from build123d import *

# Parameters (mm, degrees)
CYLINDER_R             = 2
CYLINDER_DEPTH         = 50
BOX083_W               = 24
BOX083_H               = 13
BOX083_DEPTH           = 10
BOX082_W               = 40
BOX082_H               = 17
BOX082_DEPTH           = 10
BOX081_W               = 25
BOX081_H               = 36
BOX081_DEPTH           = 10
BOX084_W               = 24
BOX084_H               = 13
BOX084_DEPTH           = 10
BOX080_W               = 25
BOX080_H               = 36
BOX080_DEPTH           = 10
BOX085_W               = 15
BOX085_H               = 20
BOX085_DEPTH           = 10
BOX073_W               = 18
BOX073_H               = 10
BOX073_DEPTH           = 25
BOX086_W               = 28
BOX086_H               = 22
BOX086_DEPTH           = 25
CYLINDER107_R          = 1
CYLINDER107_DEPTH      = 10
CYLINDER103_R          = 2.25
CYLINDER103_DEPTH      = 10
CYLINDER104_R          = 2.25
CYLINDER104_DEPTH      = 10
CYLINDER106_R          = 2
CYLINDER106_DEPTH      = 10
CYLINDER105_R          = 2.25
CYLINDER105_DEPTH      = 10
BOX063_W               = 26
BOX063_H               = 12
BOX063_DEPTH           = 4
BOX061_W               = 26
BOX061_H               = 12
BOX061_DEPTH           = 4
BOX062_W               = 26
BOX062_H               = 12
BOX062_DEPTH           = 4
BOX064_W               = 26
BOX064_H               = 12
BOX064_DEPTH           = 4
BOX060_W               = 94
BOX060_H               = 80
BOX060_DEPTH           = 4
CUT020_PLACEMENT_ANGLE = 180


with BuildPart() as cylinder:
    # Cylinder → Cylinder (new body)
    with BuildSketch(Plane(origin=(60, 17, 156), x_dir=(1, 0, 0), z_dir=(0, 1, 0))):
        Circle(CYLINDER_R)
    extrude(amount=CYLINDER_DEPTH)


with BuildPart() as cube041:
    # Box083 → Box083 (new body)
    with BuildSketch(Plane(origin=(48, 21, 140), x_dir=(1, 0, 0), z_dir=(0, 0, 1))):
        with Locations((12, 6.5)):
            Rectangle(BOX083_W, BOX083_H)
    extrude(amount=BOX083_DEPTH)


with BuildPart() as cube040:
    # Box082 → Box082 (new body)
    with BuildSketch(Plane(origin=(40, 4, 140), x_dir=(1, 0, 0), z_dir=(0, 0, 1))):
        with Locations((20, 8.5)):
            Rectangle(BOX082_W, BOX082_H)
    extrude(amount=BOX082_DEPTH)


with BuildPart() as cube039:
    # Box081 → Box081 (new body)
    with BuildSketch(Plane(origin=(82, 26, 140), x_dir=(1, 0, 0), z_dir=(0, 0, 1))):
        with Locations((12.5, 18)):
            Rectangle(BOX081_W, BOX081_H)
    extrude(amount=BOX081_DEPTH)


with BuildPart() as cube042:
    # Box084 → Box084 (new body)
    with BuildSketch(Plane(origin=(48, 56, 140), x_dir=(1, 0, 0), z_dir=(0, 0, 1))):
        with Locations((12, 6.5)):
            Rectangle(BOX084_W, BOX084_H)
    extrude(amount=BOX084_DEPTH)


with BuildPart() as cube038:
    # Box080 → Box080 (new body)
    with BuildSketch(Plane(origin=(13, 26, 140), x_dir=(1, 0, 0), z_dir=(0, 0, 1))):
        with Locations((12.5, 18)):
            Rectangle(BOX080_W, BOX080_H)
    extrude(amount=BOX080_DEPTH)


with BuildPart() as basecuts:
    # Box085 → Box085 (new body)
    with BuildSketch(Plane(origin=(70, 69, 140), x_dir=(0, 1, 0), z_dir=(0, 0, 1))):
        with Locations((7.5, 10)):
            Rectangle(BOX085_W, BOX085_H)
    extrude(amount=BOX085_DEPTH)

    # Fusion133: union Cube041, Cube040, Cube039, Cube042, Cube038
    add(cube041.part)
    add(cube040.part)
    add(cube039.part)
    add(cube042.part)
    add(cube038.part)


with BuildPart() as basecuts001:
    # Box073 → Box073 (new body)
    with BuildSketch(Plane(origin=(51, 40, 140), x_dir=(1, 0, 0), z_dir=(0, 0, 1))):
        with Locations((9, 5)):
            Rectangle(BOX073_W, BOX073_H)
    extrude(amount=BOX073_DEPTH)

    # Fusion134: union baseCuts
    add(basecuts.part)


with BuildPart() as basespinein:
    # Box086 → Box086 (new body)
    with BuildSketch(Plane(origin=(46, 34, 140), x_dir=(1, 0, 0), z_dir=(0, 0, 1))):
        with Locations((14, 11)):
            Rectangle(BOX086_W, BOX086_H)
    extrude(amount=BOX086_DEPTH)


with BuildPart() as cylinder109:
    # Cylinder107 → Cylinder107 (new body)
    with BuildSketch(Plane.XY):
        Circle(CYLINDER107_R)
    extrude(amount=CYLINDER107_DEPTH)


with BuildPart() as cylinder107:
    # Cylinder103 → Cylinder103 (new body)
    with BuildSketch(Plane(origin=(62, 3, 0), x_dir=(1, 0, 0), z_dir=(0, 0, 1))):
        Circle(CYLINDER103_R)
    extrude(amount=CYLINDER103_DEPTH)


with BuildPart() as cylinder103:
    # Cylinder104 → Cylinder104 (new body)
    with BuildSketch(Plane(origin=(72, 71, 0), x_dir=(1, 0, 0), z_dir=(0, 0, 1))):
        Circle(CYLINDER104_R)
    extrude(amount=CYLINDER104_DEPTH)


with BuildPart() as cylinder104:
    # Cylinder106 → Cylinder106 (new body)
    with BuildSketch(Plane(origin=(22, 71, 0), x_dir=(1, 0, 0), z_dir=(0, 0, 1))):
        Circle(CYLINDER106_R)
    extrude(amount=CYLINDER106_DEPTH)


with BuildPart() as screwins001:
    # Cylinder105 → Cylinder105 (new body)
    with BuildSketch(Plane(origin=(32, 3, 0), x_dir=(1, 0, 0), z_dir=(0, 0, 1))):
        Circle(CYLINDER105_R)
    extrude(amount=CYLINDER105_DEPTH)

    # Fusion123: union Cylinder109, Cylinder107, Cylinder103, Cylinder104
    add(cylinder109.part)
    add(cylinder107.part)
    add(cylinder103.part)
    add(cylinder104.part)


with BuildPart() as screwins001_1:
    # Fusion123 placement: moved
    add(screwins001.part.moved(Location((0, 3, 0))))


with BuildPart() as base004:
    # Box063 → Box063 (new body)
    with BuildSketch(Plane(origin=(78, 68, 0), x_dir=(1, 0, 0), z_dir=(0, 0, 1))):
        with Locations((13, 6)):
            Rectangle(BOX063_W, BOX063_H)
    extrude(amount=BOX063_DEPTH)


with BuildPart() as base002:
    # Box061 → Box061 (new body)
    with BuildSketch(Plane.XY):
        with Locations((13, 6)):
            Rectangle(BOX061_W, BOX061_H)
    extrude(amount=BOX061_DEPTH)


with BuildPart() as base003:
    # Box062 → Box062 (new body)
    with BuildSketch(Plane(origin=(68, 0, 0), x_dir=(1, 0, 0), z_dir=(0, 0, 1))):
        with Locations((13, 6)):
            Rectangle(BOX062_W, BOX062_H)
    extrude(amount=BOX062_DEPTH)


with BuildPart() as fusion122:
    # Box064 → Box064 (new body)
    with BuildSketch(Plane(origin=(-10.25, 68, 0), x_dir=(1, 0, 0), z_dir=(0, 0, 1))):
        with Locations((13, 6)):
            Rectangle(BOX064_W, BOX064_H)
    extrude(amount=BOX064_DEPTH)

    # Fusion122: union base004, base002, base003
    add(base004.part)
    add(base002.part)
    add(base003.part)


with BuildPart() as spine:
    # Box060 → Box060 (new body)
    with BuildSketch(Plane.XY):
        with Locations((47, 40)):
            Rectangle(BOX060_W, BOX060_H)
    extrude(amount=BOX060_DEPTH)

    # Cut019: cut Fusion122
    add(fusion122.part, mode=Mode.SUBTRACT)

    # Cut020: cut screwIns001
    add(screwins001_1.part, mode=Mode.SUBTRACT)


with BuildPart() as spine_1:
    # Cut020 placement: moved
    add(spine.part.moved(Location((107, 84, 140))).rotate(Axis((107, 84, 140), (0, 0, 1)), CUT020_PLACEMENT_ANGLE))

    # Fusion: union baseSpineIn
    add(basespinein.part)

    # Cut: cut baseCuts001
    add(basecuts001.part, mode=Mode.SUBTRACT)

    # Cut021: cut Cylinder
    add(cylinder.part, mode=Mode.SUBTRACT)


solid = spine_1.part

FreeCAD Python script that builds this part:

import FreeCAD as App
import Part
import Sketcher
from FreeCAD import Vector
Q = App.Units.Quantity


def add_polygon(sketch, points):
    """Adds a closed chain of lines whose ends are joined by coincident constraints."""
    first, n = sketch.GeometryCount, len(points)
    for a, b in zip(points, points[1:] + points[:1]):
        sketch.addGeometry(Part.LineSegment(App.Vector(*a, 0), App.Vector(*b, 0)), False)
    for i in range(n):
        sketch.addConstraint(Sketcher.Constraint("Coincident", first + i, 2, first + (i + 1) % n, 1))

doc = App.newDocument("Part")
body = doc.addObject("PartDesign::Body", "Body")

# Sketch on XZ plane
sketch1 = doc.addObject("Sketcher::SketchObject", "Sketch")
body.addObject(sketch1)
sketch1.AttachmentSupport = (doc.XZ_Plane, [""])
sketch1.MapMode = "FlatFace"
sketch1.AttachmentOffset = App.Placement(Vector(0, 0, -17), App.Rotation())
sketch1.addGeometry(Part.Circle(Vector(60, 156, 0), Vector(0, 0, 1), 2), False)
sketch1.addConstraint([
    Sketcher.Constraint("Diameter", 0, Q("4 mm")),
    Sketcher.Constraint("DistanceX", -1, 1, 0, 3, Q("60 mm")),
    Sketcher.Constraint("DistanceY", -1, 1, 0, 3, Q("156 mm")),
])
pad1 = doc.addObject("PartDesign::Pad", "Pad")
body.addObject(pad1)
pad1.Profile = sketch1
pad1.Length = 50
pad1.Reversed = True
body2 = doc.addObject("PartDesign::Body", "Body001")

# Sketch on XY plane
sketch2 = doc.addObject("Sketcher::SketchObject", "Sketch001")
body2.addObject(sketch2)
sketch2.AttachmentSupport = (doc.getObject("XY_Plane001"), [""])
sketch2.MapMode = "FlatFace"
sketch2.AttachmentOffset = App.Placement(Vector(0, 0, 140), App.Rotation())
add_polygon(sketch2, [(48, 34), (48, 21), (72, 21), (72, 34)])  # lines 0-3
sketch2.addConstraint([
    Sketcher.Constraint("Vertical", 0),
    Sketcher.Constraint("Horizontal", 1),
    Sketcher.Constraint("Vertical", 2),
    Sketcher.Constraint("Horizontal", 3),
    Sketcher.Constraint("DistanceX", 1, 1, 1, 2, Q("24 mm")),
    Sketcher.Constraint("DistanceY", 0, 2, 0, 1, Q("13 mm")),
    Sketcher.Constraint("DistanceX", -1, 1, 0, 2, Q("48 mm")),
    Sketcher.Constraint("DistanceY", -1, 1, 0, 2, Q("21 mm")),
])
pad2 = doc.addObject("PartDesign::Pad", "Pad001")
body2.addObject(pad2)
pad2.Profile = sketch2
pad2.Length = 10
body3 = doc.addObject("PartDesign::Body", "Body002")

# Sketch on XY plane
sketch3 = doc.addObject("Sketcher::SketchObject", "Sketch002")
body3.addObject(sketch3)
sketch3.AttachmentSupport = (doc.getObject("XY_Plane002"), [""])
sketch3.MapMode = "FlatFace"
sketch3.AttachmentOffset = App.Placement(Vector(0, 0, 140), App.Rotation())
add_polygon(sketch3, [(40, 21), (40, 4), (80, 4), (80, 21)])  # lines 0-3
sketch3.addConstraint([
    Sketcher.Constraint("Vertical", 0),
    Sketcher.Constraint("Horizontal", 1),
    Sketcher.Constraint("Vertical", 2),
    Sketcher.Constraint("Horizontal", 3),
    Sketcher.Constraint("DistanceX", 1, 1, 1, 2, Q("40 mm")),
    Sketcher.Constraint("DistanceY", 0, 2, 0, 1, Q("17 mm")),
    Sketcher.Constraint("DistanceX", -1, 1, 0, 2, Q("40 mm")),
    Sketcher.Constraint("DistanceY", -1, 1, 0, 2, Q("4 mm")),
])
pad3 = doc.addObject("PartDesign::Pad", "Pad002")
body3.addObject(pad3)
pad3.Profile = sketch3
pad3.Length = 10
body4 = doc.addObject("PartDesign::Body", "Body003")

# Sketch on XY plane
sketch4 = doc.addObject("Sketcher::SketchObject", "Sketch003")
body4.addObject(sketch4)
sketch4.AttachmentSupport = (doc.getObject("XY_Plane003"), [""])
sketch4.MapMode = "FlatFace"
sketch4.AttachmentOffset = App.Placement(Vector(0, 0, 140), App.Rotation())
add_polygon(sketch4, [(82, 62), (82, 26), (107, 26), (107, 62)])  # lines 0-3
sketch4.addConstraint([
    Sketcher.Constraint("Vertical", 0),
    Sketcher.Constraint("Horizontal", 1),
    Sketcher.Constraint("Vertical", 2),
    Sketcher.Constraint("Horizontal", 3),
    Sketcher.Constraint("DistanceX", 1, 1, 1, 2, Q("25 mm")),
    Sketcher.Constraint("DistanceY", 0, 2, 0, 1, Q("36 mm")),
    Sketcher.Constraint("DistanceX", -1, 1, 0, 2, Q("82 mm")),
    Sketcher.Constraint("DistanceY", -1, 1, 0, 2, Q("26 mm")),
])
pad4 = doc.addObject("PartDesign::Pad", "Pad003")
body4.addObject(pad4)
pad4.Profile = sketch4
pad4.Length = 10
body5 = doc.addObject("PartDesign::Body", "Body004")

# Sketch on XY plane
sketch5 = doc.addObject("Sketcher::SketchObject", "Sketch004")
body5.addObject(sketch5)
sketch5.AttachmentSupport = (doc.getObject("XY_Plane004"), [""])
sketch5.MapMode = "FlatFace"
sketch5.AttachmentOffset = App.Placement(Vector(0, 0, 140), App.Rotation())
add_polygon(sketch5, [(48, 69), (48, 56), (72, 56), (72, 69)])  # lines 0-3
sketch5.addConstraint([
    Sketcher.Constraint("Vertical", 0),
    Sketcher.Constraint("Horizontal", 1),
    Sketcher.Constraint("Vertical", 2),
    Sketcher.Constraint("Horizontal", 3),
    Sketcher.Constraint("DistanceX", 1, 1, 1, 2, Q("24 mm")),
    Sketcher.Constraint("DistanceY", 0, 2, 0, 1, Q("13 mm")),
    Sketcher.Constraint("DistanceX", -1, 1, 0, 2, Q("48 mm")),
    Sketcher.Constraint("DistanceY", -1, 1, 0, 2, Q("56 mm")),
])
pad5 = doc.addObject("PartDesign::Pad", "Pad004")
body5.addObject(pad5)
pad5.Profile = sketch5
pad5.Length = 10
body6 = doc.addObject("PartDesign::Body", "Body005")

# Sketch on XY plane
sketch6 = doc.addObject("Sketcher::SketchObject", "Sketch005")
body6.addObject(sketch6)
sketch6.AttachmentSupport = (doc.getObject("XY_Plane005"), [""])
sketch6.MapMode = "FlatFace"
sketch6.AttachmentOffset = App.Placement(Vector(0, 0, 140), App.Rotation())
add_polygon(sketch6, [(13, 62), (13, 26), (38, 26), (38, 62)])  # lines 0-3
sketch6.addConstraint([
    Sketcher.Constraint("Vertical", 0),
    Sketcher.Constraint("Horizontal", 1),
    Sketcher.Constraint("Vertical", 2),
    Sketcher.Constraint("Horizontal", 3),
    Sketcher.Constraint("DistanceX", 1, 1, 1, 2, Q("25 mm")),
    Sketcher.Constraint("DistanceY", 0, 2, 0, 1, Q("36 mm")),
    Sketcher.Constraint("DistanceX", -1, 1, 0, 2, Q("13 mm")),
    Sketcher.Constraint("DistanceY", -1, 1, 0, 2, Q("26 mm")),
])
pad6 = doc.addObject("PartDesign::Pad", "Pad005")
body6.addObject(pad6)
pad6.Profile = sketch6
pad6.Length = 10
body7 = doc.addObject("PartDesign::Body", "Body006")
body7.AllowCompound = True

# Sketch on XY plane
sketch7 = doc.addObject("Sketcher::SketchObject", "Sketch006")
body7.addObject(sketch7)
sketch7.AttachmentSupport = (doc.getObject("XY_Plane006"), [""])
sketch7.MapMode = "FlatFace"
sketch7.AttachmentOffset = App.Placement(Vector(0, 0, 140), App.Rotation())
add_polygon(sketch7, [(50, 69), (70, 69), (70, 84), (50, 84)])  # lines 0-3
sketch7.addConstraint([
    Sketcher.Constraint("Horizontal", 0),
    Sketcher.Constraint("Vertical", 1),
    Sketcher.Constraint("Horizontal", 2),
    Sketcher.Constraint("Vertical", 3),
    Sketcher.Constraint("DistanceX", 0, 1, 0, 2, Q("20 mm")),
    Sketcher.Constraint("DistanceY", 1, 1, 1, 2, Q("15 mm")),
    Sketcher.Constraint("DistanceX", -1, 1, 0, 2, Q("70 mm")),
    Sketcher.Constraint("DistanceY", -1, 1, 0, 2, Q("69 mm")),
])
pad7 = doc.addObject("PartDesign::Pad", "Pad006")
body7.addObject(pad7)
pad7.Profile = sketch7
pad7.Length = 10
doc.recompute()

boolean = doc.addObject("PartDesign::Boolean", "Boolean")
body7.addObject(boolean)
boolean.Type = "Fuse"
boolean.addObjects([body2])
doc.recompute()

boolean2 = doc.addObject("PartDesign::Boolean", "Boolean001")
body7.addObject(boolean2)
boolean2.Type = "Fuse"
boolean2.addObjects([body3])
doc.recompute()

boolean3 = doc.addObject("PartDesign::Boolean", "Boolean002")
body7.addObject(boolean3)
boolean3.Type = "Fuse"
boolean3.addObjects([body4])
doc.recompute()

boolean4 = doc.addObject("PartDesign::Boolean", "Boolean003")
body7.addObject(boolean4)
boolean4.Type = "Fuse"
boolean4.addObjects([body5])
doc.recompute()

boolean5 = doc.addObject("PartDesign::Boolean", "Boolean004")
body7.addObject(boolean5)
boolean5.Type = "Fuse"
boolean5.addObjects([body6])
body8 = doc.addObject("PartDesign::Body", "Body007")
body8.AllowCompound = True

# Sketch on XY plane
sketch8 = doc.addObject("Sketcher::SketchObject", "Sketch007")
body8.addObject(sketch8)
sketch8.AttachmentSupport = (doc.getObject("XY_Plane007"), [""])
sketch8.MapMode = "FlatFace"
sketch8.AttachmentOffset = App.Placement(Vector(0, 0, 140), App.Rotation())
add_polygon(sketch8, [(51, 50), (51, 40), (69, 40), (69, 50)])  # lines 0-3
sketch8.addConstraint([
    Sketcher.Constraint("Vertical", 0),
    Sketcher.Constraint("Horizontal", 1),
    Sketcher.Constraint("Vertical", 2),
    Sketcher.Constraint("Horizontal", 3),
    Sketcher.Constraint("DistanceX", 1, 1, 1, 2, Q("18 mm")),
    Sketcher.Constraint("DistanceY", 0, 2, 0, 1, Q("10 mm")),
    Sketcher.Constraint("DistanceX", -1, 1, 0, 2, Q("51 mm")),
    Sketcher.Constraint("DistanceY", -1, 1, 0, 2, Q("40 mm")),
])
pad8 = doc.addObject("PartDesign::Pad", "Pad007")
body8.addObject(pad8)
pad8.Profile = sketch8
pad8.Length = 25
doc.recompute()

boolean6 = doc.addObject("PartDesign::Boolean", "Boolean005")
body8.addObject(boolean6)
boolean6.Type = "Fuse"
boolean6.addObjects([body7])
body9 = doc.addObject("PartDesign::Body", "Body008")

# Sketch on XY plane
sketch9 = doc.addObject("Sketcher::SketchObject", "Sketch008")
body9.addObject(sketch9)
sketch9.AttachmentSupport = (doc.getObject("XY_Plane008"), [""])
sketch9.MapMode = "FlatFace"
sketch9.AttachmentOffset = App.Placement(Vector(0, 0, 140), App.Rotation())
add_polygon(sketch9, [(46, 56), (46, 34), (74, 34), (74, 56)])  # lines 0-3
sketch9.addConstraint([
    Sketcher.Constraint("Vertical", 0),
    Sketcher.Constraint("Horizontal", 1),
    Sketcher.Constraint("Vertical", 2),
    Sketcher.Constraint("Horizontal", 3),
    Sketcher.Constraint("DistanceX", 1, 1, 1, 2, Q("28 mm")),
    Sketcher.Constraint("DistanceY", 0, 2, 0, 1, Q("22 mm")),
    Sketcher.Constraint("DistanceX", -1, 1, 0, 2, Q("46 mm")),
    Sketcher.Constraint("DistanceY", -1, 1, 0, 2, Q("34 mm")),
])
pad9 = doc.addObject("PartDesign::Pad", "Pad008")
body9.addObject(pad9)
pad9.Profile = sketch9
pad9.Length = 25
body10 = doc.addObject("PartDesign::Body", "Body009")

# Sketch on XY plane
sketch10 = doc.addObject("Sketcher::SketchObject", "Sketch009")
body10.addObject(sketch10)
sketch10.AttachmentSupport = (doc.getObject("XY_Plane009"), [""])
sketch10.MapMode = "FlatFace"
sketch10.addGeometry(Part.Circle(Vector(0, 0, 0), Vector(0, 0, 1), 1), False)
sketch10.addConstraint([
    Sketcher.Constraint("Coincident", 0, 3, -1, 1),
    Sketcher.Constraint("Diameter", 0, Q("2 mm")),
])
pad10 = doc.addObject("PartDesign::Pad", "Pad009")
body10.addObject(pad10)
pad10.Profile = sketch10
pad10.Length = 10
body11 = doc.addObject("PartDesign::Body", "Body010")

# Sketch on XY plane
sketch11 = doc.addObject("Sketcher::SketchObject", "Sketch010")
body11.addObject(sketch11)
sketch11.AttachmentSupport = (doc.getObject("XY_Plane010"), [""])
sketch11.MapMode = "FlatFace"
sketch11.addGeometry(Part.Circle(Vector(62, 3, 0), Vector(0, 0, 1), 2.25), False)
sketch11.addConstraint([
    Sketcher.Constraint("Diameter", 0, Q("4.5 mm")),
    Sketcher.Constraint("DistanceX", -1, 1, 0, 3, Q("62 mm")),
    Sketcher.Constraint("DistanceY", -1, 1, 0, 3, Q("3 mm")),
])
pad11 = doc.addObject("PartDesign::Pad", "Pad010")
body11.addObject(pad11)
pad11.Profile = sketch11
pad11.Length = 10
body12 = doc.addObject("PartDesign::Body", "Body011")

# Sketch on XY plane
sketch12 = doc.addObject("Sketcher::SketchObject", "Sketch011")
body12.addObject(sketch12)
sketch12.AttachmentSupport = (doc.getObject("XY_Plane011"), [""])
sketch12.MapMode = "FlatFace"
sketch12.addGeometry(Part.Circle(Vector(72, 71, 0), Vector(0, 0, 1), 2.25), False)
sketch12.addConstraint([
    Sketcher.Constraint("Diameter", 0, Q("4.5 mm")),
    Sketcher.Constraint("DistanceX", -1, 1, 0, 3, Q("72 mm")),
    Sketcher.Constraint("DistanceY", -1, 1, 0, 3, Q("71 mm")),
])
pad12 = doc.addObject("PartDesign::Pad", "Pad011")
body12.addObject(pad12)
pad12.Profile = sketch12
pad12.Length = 10
body13 = doc.addObject("PartDesign::Body", "Body012")

# Sketch on XY plane
sketch13 = doc.addObject("Sketcher::SketchObject", "Sketch012")
body13.addObject(sketch13)
sketch13.AttachmentSupport = (doc.getObject("XY_Plane012"), [""])
sketch13.MapMode = "FlatFace"
sketch13.addGeometry(Part.Circle(Vector(22, 71, 0), Vector(0, 0, 1), 2), False)
sketch13.addConstraint([
    Sketcher.Constraint("Diameter", 0, Q("4 mm")),
    Sketcher.Constraint("DistanceX", -1, 1, 0, 3, Q("22 mm")),
    Sketcher.Constraint("DistanceY", -1, 1, 0, 3, Q("71 mm")),
])
pad13 = doc.addObject("PartDesign::Pad", "Pad012")
body13.addObject(pad13)
pad13.Profile = sketch13
pad13.Length = 10
body14 = doc.addObject("PartDesign::Body", "Body013")
body14.AllowCompound = True

# Sketch on XY plane
sketch14 = doc.addObject("Sketcher::SketchObject", "Sketch013")
body14.addObject(sketch14)
sketch14.AttachmentSupport = (doc.getObject("XY_Plane013"), [""])
sketch14.MapMode = "FlatFace"
sketch14.addGeometry(Part.Circle(Vector(32, 3, 0), Vector(0, 0, 1), 2.25), False)
sketch14.addConstraint([
    Sketcher.Constraint("Diameter", 0, Q("4.5 mm")),
    Sketcher.Constraint("DistanceX", -1, 1, 0, 3, Q("32 mm")),
    Sketcher.Constraint("DistanceY", -1, 1, 0, 3, Q("3 mm")),
])
pad14 = doc.addObject("PartDesign::Pad", "Pad013")
body14.addObject(pad14)
pad14.Profile = sketch14
pad14.Length = 10
doc.recompute()

boolean7 = doc.addObject("PartDesign::Boolean", "Boolean006")
body14.addObject(boolean7)
boolean7.Type = "Fuse"
boolean7.addObjects([body10])
doc.recompute()

boolean8 = doc.addObject("PartDesign::Boolean", "Boolean007")
body14.addObject(boolean8)
boolean8.Type = "Fuse"
boolean8.addObjects([body11])
doc.recompute()

boolean9 = doc.addObject("PartDesign::Boolean", "Boolean008")
body14.addObject(boolean9)
boolean9.Type = "Fuse"
boolean9.addObjects([body12])
doc.recompute()

boolean10 = doc.addObject("PartDesign::Boolean", "Boolean009")
body14.addObject(boolean10)
boolean10.Type = "Fuse"
boolean10.addObjects([body13])
body15 = doc.addObject("PartDesign::Body", "Body014")
body15.AllowCompound = True
doc.recompute()

body14.Placement = App.Placement(Vector(0, 3, 0), App.Rotation(Vector(0, 0, 1), 0))
boolean11 = doc.addObject("PartDesign::Boolean", "Boolean010")
body15.addObject(boolean11)
boolean11.Type = "Fuse"
boolean11.addObjects([body14])
body16 = doc.addObject("PartDesign::Body", "Body015")

# Sketch on XY plane
sketch15 = doc.addObject("Sketcher::SketchObject", "Sketch014")
body16.addObject(sketch15)
sketch15.AttachmentSupport = (doc.getObject("XY_Plane015"), [""])
sketch15.MapMode = "FlatFace"
add_polygon(sketch15, [(78, 80), (78, 68), (104, 68), (104, 80)])  # lines 0-3
sketch15.addConstraint([
    Sketcher.Constraint("Vertical", 0),
    Sketcher.Constraint("Horizontal", 1),
    Sketcher.Constraint("Vertical", 2),
    Sketcher.Constraint("Horizontal", 3),
    Sketcher.Constraint("DistanceX", 1, 1, 1, 2, Q("26 mm")),
    Sketcher.Constraint("DistanceY", 0, 2, 0, 1, Q("12 mm")),
    Sketcher.Constraint("DistanceX", -1, 1, 0, 2, Q("78 mm")),
    Sketcher.Constraint("DistanceY", -1, 1, 0, 2, Q("68 mm")),
])
pad15 = doc.addObject("PartDesign::Pad", "Pad014")
body16.addObject(pad15)
pad15.Profile = sketch15
pad15.Length = 4
body17 = doc.addObject("PartDesign::Body", "Body016")

# Sketch on XY plane
sketch16 = doc.addObject("Sketcher::SketchObject", "Sketch015")
body17.addObject(sketch16)
sketch16.AttachmentSupport = (doc.getObject("XY_Plane016"), [""])
sketch16.MapMode = "FlatFace"
add_polygon(sketch16, [(0, 12), (0, 0), (26, 0), (26, 12)])  # lines 0-3
sketch16.addConstraint([
    Sketcher.Constraint("Vertical", 0),
    Sketcher.Constraint("Horizontal", 1),
    Sketcher.Constraint("Vertical", 2),
    Sketcher.Constraint("Horizontal", 3),
    Sketcher.Constraint("Coincident", 0, 2, -1, 1),
    Sketcher.Constraint("DistanceX", 1, 1, 1, 2, Q("26 mm")),
    Sketcher.Constraint("DistanceY", 0, 2, 0, 1, Q("12 mm")),
])
pad16 = doc.addObject("PartDesign::Pad", "Pad015")
body17.addObject(pad16)
pad16.Profile = sketch16
pad16.Length = 4
body18 = doc.addObject("PartDesign::Body", "Body017")

# Sketch on XY plane
sketch17 = doc.addObject("Sketcher::SketchObject", "Sketch016")
body18.addObject(sketch17)
sketch17.AttachmentSupport = (doc.getObject("XY_Plane017"), [""])
sketch17.MapMode = "FlatFace"
add_polygon(sketch17, [(68, 12), (68, 0), (94, 0), (94, 12)])  # lines 0-3
sketch17.addConstraint([
    Sketcher.Constraint("Vertical", 0),
    Sketcher.Constraint("Horizontal", 1),
    Sketcher.Constraint("Vertical", 2),
    Sketcher.Constraint("Horizontal", 3),
    Sketcher.Constraint("PointOnObject", 0, 2, -1),
    Sketcher.Constraint("DistanceX", 1, 1, 1, 2, Q("26 mm")),
    Sketcher.Constraint("DistanceY", 0, 2, 0, 1, Q("12 mm")),
    Sketcher.Constraint("DistanceX", -1, 1, 0, 2, Q("68 mm")),
])
pad17 = doc.addObject("PartDesign::Pad", "Pad016")
body18.addObject(pad17)
pad17.Profile = sketch17
pad17.Length = 4
body19 = doc.addObject("PartDesign::Body", "Body018")
body19.AllowCompound = True

# Sketch on XY plane
sketch18 = doc.addObject("Sketcher::SketchObject", "Sketch017")
body19.addObject(sketch18)
sketch18.AttachmentSupport = (doc.getObject("XY_Plane018"), [""])
sketch18.MapMode = "FlatFace"
add_polygon(sketch18, [(-10.25, 80), (-10.25, 68), (15.75, 68), (15.75, 80)])  # lines 0-3
sketch18.addConstraint([
    Sketcher.Constraint("Vertical", 0),
    Sketcher.Constraint("Horizontal", 1),
    Sketcher.Constraint("Vertical", 2),
    Sketcher.Constraint("Horizontal", 3),
    Sketcher.Constraint("DistanceX", 1, 1, 1, 2, Q("26 mm")),
    Sketcher.Constraint("DistanceY", 0, 2, 0, 1, Q("12 mm")),
    Sketcher.Constraint("DistanceY", -1, 1, 0, 2, Q("68 mm")),
    Sketcher.Constraint("DistanceX", 0, 2, -1, 1, Q("10.25 mm")),
])
pad18 = doc.addObject("PartDesign::Pad", "Pad017")
body19.addObject(pad18)
pad18.Profile = sketch18
pad18.Length = 4
doc.recompute()

boolean12 = doc.addObject("PartDesign::Boolean", "Boolean011")
body19.addObject(boolean12)
boolean12.Type = "Fuse"
boolean12.addObjects([body16])
doc.recompute()

boolean13 = doc.addObject("PartDesign::Boolean", "Boolean012")
body19.addObject(boolean13)
boolean13.Type = "Fuse"
boolean13.addObjects([body17])
doc.recompute()

boolean14 = doc.addObject("PartDesign::Boolean", "Boolean013")
body19.addObject(boolean14)
boolean14.Type = "Fuse"
boolean14.addObjects([body18])
body20 = doc.addObject("PartDesign::Body", "Body019")

# Sketch on XY plane
sketch19 = doc.addObject("Sketcher::SketchObject", "Sketch018")
body20.addObject(sketch19)
sketch19.AttachmentSupport = (doc.getObject("XY_Plane019"), [""])
sketch19.MapMode = "FlatFace"
add_polygon(sketch19, [(0, 80), (0, 0), (94, 0), (94, 80)])  # lines 0-3
sketch19.addConstraint([
    Sketcher.Constraint("Vertical", 0),
    Sketcher.Constraint("Horizontal", 1),
    Sketcher.Constraint("Vertical", 2),
    Sketcher.Constraint("Horizontal", 3),
    Sketcher.Constraint("Coincident", 0, 2, -1, 1),
    Sketcher.Constraint("DistanceX", 1, 1, 1, 2, Q("94 mm")),
    Sketcher.Constraint("DistanceY", 0, 2, 0, 1, Q("80 mm")),
])
pad19 = doc.addObject("PartDesign::Pad", "Pad018")
body20.addObject(pad19)
pad19.Profile = sketch19
pad19.Length = 4
doc.recompute()

boolean15 = doc.addObject("PartDesign::Boolean", "Boolean014")
body20.addObject(boolean15)
boolean15.Type = "Cut"
boolean15.addObjects([body19])
doc.recompute()

boolean16 = doc.addObject("PartDesign::Boolean", "Boolean015")
body20.addObject(boolean16)
boolean16.Type = "Cut"
boolean16.addObjects([body15])
body21 = doc.addObject("PartDesign::Body", "Body020")
doc.recompute()

body20.Placement = App.Placement(Vector(107, 84, 140), App.Rotation(Vector(0, 0, 1), 180))
boolean17 = doc.addObject("PartDesign::Boolean", "Boolean016")
body21.addObject(boolean17)
boolean17.Type = "Fuse"
boolean17.addObjects([body20])
doc.recompute()

boolean18 = doc.addObject("PartDesign::Boolean", "Boolean017")
body21.addObject(boolean18)
boolean18.Type = "Fuse"
boolean18.addObjects([body9])
doc.recompute()

boolean19 = doc.addObject("PartDesign::Boolean", "Boolean018")
body21.addObject(boolean19)
boolean19.Type = "Cut"
boolean19.addObjects([body8])
doc.recompute()

boolean20 = doc.addObject("PartDesign::Boolean", "Boolean019")
body21.addObject(boolean20)
boolean20.Type = "Cut"
boolean20.addObjects([body])

doc.recompute()
